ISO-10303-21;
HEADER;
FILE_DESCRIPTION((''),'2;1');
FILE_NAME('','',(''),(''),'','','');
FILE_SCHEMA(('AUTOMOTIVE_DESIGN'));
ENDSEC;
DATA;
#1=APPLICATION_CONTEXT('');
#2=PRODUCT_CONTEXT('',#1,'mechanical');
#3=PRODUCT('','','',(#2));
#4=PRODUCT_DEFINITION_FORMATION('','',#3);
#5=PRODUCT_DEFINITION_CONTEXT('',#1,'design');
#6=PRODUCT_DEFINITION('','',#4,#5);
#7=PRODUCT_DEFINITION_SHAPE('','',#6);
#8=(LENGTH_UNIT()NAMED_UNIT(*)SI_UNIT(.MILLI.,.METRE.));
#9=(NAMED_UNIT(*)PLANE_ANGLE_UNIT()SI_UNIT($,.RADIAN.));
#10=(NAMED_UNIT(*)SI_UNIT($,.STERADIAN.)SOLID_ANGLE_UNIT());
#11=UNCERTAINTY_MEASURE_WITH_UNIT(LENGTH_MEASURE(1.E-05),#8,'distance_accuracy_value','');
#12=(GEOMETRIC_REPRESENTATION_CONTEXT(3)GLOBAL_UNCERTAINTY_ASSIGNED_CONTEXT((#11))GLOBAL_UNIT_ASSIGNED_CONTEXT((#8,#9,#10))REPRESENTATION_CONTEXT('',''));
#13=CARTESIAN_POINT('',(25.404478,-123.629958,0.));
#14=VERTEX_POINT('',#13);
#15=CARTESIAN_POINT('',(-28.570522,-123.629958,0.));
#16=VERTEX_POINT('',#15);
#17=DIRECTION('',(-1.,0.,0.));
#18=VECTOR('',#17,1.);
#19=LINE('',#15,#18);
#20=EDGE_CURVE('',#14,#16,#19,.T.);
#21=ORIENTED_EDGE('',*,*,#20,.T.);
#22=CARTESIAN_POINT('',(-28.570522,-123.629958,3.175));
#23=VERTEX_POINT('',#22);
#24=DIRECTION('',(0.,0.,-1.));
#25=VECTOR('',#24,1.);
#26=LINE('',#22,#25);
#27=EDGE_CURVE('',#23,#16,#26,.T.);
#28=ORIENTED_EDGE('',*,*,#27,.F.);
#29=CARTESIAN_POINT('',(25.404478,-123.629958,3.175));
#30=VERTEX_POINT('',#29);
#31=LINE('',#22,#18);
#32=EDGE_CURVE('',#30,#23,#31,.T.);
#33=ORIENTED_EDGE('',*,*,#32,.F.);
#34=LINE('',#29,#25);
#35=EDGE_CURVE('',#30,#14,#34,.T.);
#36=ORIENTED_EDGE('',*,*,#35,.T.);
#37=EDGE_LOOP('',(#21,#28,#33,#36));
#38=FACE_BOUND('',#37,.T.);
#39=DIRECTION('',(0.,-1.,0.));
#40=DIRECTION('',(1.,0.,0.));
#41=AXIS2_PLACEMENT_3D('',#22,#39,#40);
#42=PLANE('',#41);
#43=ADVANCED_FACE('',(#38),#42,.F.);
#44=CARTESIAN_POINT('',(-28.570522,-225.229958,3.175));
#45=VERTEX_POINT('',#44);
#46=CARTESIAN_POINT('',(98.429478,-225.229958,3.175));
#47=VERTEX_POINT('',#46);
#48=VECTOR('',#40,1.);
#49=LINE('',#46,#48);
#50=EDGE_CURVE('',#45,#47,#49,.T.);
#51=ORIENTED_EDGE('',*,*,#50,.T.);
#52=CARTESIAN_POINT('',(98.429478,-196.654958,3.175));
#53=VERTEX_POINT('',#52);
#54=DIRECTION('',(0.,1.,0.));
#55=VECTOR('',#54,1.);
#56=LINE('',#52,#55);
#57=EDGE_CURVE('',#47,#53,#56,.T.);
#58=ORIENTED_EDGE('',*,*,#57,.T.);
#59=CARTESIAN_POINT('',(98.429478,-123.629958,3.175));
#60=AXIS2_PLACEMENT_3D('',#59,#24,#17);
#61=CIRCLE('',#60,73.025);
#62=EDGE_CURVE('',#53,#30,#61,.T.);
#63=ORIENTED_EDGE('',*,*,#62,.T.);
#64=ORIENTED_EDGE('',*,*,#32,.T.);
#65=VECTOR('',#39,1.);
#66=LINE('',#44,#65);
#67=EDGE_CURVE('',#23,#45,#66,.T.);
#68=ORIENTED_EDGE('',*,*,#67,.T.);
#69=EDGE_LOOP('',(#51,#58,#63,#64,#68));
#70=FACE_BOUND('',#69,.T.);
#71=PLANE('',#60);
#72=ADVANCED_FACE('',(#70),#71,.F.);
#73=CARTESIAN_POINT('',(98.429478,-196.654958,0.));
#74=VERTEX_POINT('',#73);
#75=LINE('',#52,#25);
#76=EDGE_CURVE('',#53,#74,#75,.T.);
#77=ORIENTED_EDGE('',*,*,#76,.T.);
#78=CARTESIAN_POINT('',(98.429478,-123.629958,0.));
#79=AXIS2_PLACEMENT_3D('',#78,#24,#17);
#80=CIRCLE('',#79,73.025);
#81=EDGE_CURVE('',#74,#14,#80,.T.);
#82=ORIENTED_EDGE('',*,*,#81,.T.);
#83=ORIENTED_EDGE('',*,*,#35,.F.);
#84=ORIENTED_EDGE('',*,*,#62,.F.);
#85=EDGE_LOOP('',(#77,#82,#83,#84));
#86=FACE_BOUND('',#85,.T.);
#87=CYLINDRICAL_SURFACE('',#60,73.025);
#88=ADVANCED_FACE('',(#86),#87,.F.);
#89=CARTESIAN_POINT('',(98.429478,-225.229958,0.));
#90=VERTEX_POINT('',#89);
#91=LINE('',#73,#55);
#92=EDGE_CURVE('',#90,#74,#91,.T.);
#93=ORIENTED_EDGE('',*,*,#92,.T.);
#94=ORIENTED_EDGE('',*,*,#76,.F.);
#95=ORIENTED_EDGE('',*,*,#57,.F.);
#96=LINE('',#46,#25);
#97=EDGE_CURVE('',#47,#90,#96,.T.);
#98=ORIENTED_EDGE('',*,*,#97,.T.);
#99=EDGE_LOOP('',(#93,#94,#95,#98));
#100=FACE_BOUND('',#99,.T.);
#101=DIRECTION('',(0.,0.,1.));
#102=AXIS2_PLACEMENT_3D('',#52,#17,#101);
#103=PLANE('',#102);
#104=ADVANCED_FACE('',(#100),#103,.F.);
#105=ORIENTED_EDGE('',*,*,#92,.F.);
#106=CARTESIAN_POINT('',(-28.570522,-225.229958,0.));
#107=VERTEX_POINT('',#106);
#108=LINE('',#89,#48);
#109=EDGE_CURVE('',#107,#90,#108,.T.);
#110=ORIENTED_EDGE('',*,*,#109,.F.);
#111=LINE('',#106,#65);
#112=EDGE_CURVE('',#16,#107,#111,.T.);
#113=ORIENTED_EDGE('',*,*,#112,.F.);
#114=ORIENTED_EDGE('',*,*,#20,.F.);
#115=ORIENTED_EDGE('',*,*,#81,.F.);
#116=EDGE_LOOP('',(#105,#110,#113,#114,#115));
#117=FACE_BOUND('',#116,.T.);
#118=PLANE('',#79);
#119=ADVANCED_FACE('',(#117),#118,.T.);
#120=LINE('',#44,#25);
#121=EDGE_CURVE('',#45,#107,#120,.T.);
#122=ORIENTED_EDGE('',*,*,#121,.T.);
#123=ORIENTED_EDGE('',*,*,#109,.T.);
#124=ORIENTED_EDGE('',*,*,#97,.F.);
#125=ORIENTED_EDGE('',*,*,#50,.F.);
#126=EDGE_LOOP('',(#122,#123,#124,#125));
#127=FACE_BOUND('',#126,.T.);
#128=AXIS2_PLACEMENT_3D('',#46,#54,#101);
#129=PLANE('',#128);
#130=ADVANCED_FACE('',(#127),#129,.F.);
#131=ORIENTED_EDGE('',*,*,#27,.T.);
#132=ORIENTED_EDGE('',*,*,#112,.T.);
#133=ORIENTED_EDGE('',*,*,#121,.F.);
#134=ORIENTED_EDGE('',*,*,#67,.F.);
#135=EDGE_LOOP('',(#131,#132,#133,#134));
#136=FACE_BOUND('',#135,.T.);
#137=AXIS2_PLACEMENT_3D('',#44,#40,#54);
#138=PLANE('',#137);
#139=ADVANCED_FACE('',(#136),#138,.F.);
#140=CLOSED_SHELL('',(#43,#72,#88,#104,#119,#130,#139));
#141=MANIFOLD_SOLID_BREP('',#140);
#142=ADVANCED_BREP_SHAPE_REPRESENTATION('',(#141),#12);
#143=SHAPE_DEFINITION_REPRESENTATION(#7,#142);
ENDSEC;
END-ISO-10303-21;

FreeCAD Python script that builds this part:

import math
import FreeCAD as App
import Part
import Sketcher
Q = App.Units.Quantity

doc = App.newDocument("Part")
body = doc.addObject("PartDesign::Body", "Body")

sketch1 = body.newObject("Sketcher::SketchObject", "Sketch")
sketch1.AttachmentSupport = (doc.getObject("XY_Plane"), [""])
sketch1.MapMode = "FlatFace"
sketch1.addGeometry([
    Part.LineSegment(App.Vector(98.429478, -225.229958, 0), App.Vector(98.429478, -196.654958, 0)),
    Part.ArcOfCircle(Part.Circle(App.Vector(98.429478, -123.629958, 0), App.Vector(0, 0, 1), 73.025), math.radians(-180), math.radians(-90)),
    Part.LineSegment(App.Vector(25.404478, -123.629958, 0), App.Vector(-28.570522, -123.629958, 0)),
    Part.LineSegment(App.Vector(-28.570522, -123.629958, 0), App.Vector(-28.570522, -225.229958, 0)),
    Part.LineSegment(App.Vector(-28.570522, -225.229958, 0), App.Vector(98.429478, -225.229958, 0)),
], False)
sketch1.addConstraint([
    Sketcher.Constraint("Coincident", 0, 2, 1, 2),
    Sketcher.Constraint("Coincident", 1, 1, 2, 1),
    Sketcher.Constraint("Coincident", 2, 2, 3, 1),
    Sketcher.Constraint("Coincident", 3, 2, 4, 1),
    Sketcher.Constraint("Coincident", 4, 2, 0, 1),
    Sketcher.Constraint("Vertical", 0),
    Sketcher.Constraint("Horizontal", 2),
    Sketcher.Constraint("Vertical", 3),
    Sketcher.Constraint("Horizontal", 4),
    Sketcher.Constraint("Vertical", 1, 3, 0, 2),
    Sketcher.Constraint("DistanceX", 4, 1, 4, 2, Q("5 in")),
    Sketcher.Constraint("DistanceY", 3, 2, 3, 1, Q("4 in")),
    Sketcher.Constraint("Radius", 1, Q("2.875 in")),
    Sketcher.Constraint("DistanceY", 3, 2, 1, 3, Q("4 in")),
    Sketcher.Constraint("DistanceX", -1, 1, 1, 3, Q("98.429478 mm")),
    Sketcher.Constraint("DistanceY", 1, 3, -1, 1, Q("123.629958 mm")),
])
pad1 = body.newObject("PartDesign::Pad", "Pad")
pad1.Profile = sketch1
pad1.Length = Q("0.125 in")

doc.recompute()
